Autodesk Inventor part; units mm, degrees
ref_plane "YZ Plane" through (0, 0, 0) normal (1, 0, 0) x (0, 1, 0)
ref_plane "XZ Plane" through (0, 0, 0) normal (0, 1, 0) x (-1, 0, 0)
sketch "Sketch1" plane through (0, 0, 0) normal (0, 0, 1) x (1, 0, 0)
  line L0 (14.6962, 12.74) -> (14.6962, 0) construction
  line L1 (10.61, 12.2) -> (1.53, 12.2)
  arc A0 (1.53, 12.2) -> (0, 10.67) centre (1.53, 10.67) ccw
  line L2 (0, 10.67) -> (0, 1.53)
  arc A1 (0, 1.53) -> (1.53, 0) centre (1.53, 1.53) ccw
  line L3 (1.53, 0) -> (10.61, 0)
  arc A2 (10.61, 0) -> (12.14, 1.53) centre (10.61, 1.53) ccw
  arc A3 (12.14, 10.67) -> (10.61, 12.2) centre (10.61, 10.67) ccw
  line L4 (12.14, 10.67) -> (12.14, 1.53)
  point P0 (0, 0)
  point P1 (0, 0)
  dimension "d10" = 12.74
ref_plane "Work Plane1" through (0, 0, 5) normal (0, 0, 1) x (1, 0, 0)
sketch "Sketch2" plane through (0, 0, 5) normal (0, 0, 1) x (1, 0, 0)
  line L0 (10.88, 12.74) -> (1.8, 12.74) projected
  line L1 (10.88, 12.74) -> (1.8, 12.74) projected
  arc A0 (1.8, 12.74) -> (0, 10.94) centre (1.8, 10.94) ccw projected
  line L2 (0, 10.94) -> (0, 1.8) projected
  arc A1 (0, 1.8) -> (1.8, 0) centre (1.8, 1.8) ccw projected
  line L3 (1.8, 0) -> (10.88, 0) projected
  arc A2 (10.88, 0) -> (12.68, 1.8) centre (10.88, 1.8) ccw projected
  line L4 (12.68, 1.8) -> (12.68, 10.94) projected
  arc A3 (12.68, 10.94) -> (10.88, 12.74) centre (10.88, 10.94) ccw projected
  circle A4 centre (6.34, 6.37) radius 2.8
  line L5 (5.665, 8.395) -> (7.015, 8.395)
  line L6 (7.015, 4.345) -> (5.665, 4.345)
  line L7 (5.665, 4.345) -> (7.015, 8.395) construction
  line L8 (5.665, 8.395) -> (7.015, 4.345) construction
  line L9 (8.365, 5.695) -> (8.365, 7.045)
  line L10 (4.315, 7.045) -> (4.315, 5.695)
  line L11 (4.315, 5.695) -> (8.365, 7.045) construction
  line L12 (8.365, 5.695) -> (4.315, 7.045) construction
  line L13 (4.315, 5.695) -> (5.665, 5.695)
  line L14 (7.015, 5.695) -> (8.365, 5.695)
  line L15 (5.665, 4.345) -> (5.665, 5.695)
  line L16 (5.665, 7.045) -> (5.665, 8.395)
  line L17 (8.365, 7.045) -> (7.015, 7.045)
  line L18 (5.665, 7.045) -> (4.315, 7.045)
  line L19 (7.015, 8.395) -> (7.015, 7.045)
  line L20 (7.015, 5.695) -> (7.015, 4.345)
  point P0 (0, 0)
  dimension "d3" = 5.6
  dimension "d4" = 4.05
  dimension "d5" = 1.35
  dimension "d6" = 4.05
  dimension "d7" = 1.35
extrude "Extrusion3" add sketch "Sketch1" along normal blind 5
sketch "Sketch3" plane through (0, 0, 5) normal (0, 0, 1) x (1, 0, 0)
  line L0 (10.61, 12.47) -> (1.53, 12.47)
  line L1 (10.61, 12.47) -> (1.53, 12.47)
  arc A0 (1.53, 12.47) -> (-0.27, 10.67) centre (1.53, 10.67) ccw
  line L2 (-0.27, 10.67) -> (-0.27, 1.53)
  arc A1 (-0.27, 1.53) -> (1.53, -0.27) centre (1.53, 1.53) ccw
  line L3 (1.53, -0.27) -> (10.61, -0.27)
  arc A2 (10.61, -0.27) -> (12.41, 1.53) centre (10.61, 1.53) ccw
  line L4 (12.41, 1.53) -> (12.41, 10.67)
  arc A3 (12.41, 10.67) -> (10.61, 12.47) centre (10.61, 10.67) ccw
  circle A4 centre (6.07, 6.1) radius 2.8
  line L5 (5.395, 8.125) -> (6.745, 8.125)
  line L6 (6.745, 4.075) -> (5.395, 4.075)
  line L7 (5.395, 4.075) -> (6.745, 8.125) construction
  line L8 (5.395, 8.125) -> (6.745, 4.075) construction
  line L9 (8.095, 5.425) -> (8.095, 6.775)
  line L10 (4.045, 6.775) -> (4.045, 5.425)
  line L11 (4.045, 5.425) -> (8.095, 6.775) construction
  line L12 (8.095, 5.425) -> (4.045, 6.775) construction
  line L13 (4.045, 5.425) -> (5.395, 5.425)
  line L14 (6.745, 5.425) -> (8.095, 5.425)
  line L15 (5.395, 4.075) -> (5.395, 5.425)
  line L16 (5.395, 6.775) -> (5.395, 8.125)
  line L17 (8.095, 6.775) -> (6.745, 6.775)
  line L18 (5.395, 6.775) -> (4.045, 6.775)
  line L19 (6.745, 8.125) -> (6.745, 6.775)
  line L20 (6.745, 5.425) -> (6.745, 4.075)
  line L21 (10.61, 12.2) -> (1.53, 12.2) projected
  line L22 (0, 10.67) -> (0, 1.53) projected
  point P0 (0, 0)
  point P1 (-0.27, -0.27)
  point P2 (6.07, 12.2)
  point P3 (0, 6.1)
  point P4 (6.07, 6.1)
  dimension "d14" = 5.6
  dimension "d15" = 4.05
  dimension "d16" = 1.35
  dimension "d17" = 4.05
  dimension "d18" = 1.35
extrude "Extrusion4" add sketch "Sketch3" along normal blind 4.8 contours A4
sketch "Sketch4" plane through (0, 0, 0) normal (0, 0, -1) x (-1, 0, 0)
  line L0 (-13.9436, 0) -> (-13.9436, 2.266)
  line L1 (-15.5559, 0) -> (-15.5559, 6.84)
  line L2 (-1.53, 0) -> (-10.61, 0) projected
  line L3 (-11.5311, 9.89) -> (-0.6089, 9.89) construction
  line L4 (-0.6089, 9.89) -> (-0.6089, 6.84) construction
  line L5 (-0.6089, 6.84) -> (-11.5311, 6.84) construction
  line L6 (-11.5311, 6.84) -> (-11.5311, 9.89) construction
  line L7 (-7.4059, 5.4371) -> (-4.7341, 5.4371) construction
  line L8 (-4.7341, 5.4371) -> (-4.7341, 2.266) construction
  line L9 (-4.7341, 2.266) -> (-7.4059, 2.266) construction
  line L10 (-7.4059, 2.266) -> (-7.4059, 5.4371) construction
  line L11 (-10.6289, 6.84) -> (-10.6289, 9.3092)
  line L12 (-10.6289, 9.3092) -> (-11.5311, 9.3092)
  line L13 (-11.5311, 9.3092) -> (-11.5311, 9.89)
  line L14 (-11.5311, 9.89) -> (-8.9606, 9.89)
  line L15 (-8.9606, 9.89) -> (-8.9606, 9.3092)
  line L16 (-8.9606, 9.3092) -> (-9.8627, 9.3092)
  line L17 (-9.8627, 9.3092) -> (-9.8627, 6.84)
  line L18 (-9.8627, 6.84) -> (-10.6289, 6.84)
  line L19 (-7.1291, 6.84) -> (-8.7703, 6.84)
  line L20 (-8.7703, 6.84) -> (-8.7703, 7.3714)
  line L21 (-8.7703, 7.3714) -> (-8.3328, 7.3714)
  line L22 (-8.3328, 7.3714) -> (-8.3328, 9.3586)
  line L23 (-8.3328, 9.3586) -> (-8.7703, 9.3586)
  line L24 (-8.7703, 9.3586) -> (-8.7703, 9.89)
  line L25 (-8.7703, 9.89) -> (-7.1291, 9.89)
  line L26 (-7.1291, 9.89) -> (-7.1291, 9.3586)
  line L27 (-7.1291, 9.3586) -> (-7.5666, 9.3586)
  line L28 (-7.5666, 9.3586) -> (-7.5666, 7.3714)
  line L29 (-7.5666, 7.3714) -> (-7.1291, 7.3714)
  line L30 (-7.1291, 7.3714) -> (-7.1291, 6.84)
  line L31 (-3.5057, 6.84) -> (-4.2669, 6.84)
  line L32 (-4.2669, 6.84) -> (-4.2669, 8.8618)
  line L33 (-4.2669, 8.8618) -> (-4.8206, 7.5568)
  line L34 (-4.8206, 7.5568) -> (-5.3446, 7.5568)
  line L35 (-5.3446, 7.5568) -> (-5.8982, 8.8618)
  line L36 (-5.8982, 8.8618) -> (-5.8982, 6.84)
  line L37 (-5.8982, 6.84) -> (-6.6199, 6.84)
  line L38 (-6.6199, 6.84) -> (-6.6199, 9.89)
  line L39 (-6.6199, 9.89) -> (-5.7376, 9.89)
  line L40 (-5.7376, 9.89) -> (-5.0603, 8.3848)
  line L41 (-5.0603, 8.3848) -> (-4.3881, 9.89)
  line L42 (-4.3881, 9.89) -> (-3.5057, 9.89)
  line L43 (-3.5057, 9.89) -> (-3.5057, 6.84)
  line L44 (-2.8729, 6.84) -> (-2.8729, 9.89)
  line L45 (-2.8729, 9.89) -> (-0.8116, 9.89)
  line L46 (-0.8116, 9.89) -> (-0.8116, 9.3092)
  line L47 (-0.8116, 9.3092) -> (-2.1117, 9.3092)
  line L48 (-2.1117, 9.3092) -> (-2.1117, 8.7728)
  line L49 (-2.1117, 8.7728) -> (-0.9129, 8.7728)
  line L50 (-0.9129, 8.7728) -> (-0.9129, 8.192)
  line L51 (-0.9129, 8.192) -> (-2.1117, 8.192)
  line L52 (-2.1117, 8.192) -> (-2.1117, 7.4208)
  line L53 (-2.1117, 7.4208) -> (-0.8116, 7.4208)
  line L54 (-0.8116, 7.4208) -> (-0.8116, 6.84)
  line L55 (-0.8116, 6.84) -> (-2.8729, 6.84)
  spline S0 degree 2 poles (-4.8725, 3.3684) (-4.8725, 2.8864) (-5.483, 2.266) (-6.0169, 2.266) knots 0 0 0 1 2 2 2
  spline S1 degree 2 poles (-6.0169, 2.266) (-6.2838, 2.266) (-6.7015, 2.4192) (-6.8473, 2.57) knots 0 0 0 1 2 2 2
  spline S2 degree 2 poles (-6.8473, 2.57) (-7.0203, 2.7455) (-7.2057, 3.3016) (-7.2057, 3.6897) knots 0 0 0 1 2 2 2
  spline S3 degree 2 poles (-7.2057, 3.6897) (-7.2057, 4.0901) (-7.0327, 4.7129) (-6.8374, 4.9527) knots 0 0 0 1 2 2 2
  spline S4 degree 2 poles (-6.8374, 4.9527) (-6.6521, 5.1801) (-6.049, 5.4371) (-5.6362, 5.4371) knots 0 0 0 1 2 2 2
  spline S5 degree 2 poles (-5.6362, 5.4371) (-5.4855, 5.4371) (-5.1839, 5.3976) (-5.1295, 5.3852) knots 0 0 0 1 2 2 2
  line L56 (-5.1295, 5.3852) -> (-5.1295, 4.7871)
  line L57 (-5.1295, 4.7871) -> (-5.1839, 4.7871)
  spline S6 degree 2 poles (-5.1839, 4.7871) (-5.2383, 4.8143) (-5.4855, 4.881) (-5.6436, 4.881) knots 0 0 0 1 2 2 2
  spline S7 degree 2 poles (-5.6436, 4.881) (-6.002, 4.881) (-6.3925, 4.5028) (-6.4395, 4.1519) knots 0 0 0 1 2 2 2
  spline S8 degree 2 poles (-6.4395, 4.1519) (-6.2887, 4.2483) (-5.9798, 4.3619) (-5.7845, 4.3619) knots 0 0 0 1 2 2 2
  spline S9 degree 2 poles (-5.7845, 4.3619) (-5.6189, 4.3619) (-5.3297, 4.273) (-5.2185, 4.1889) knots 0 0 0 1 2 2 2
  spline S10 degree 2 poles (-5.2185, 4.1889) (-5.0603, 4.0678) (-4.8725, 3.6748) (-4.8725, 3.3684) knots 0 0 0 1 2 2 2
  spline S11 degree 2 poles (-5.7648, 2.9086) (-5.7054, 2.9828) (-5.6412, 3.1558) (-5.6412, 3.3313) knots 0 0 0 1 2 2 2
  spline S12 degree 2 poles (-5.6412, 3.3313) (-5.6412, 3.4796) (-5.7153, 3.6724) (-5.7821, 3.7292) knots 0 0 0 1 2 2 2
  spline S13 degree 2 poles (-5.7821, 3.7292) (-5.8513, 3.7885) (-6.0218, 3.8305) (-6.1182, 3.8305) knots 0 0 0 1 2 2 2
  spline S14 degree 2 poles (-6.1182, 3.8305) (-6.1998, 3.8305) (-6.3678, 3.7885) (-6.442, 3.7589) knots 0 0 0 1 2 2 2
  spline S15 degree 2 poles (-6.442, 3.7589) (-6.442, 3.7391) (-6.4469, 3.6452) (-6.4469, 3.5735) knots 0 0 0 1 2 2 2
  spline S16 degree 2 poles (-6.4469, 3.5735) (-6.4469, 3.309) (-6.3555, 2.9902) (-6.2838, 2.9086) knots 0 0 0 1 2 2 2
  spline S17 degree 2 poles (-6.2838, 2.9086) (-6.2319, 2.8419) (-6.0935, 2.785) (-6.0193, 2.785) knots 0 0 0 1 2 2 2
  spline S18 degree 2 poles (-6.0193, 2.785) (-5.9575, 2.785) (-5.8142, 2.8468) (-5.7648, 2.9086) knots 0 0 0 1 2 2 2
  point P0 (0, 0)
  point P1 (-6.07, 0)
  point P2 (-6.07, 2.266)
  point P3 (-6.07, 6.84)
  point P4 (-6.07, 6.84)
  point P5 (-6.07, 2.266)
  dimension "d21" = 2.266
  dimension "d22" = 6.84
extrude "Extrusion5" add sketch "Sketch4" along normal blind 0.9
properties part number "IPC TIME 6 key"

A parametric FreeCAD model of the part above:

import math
import FreeCAD as App
import Part
import Sketcher

V = App.Vector
Q = App.Units.Quantity

doc = App.newDocument("Part")
body = doc.addObject("PartDesign::Body", "Body")

sketch1 = body.newObject("Sketcher::SketchObject", "Sketch")
sketch1.AttachmentSupport = (doc.getObject("XY_Plane"), [""])
sketch1.MapMode = "FlatFace"
sketch1.addGeometry(Part.ArcOfCircle(Part.Circle(V(10.61, 10.67, 0), V(0, 0, 1), 1.53), math.radians(0), math.radians(90)), False)
sketch1.addGeometry(Part.LineSegment(V(10.61, 12.2, 0), V(1.53, 12.2, 0)), False)
sketch1.addGeometry(Part.ArcOfCircle(Part.Circle(V(1.53, 10.67, 0), V(0, 0, 1), 1.53), math.radians(90), math.radians(180)), False)
sketch1.addGeometry(Part.LineSegment(V(0, 10.67, 0), V(0, 1.53, 0)), False)
sketch1.addGeometry(Part.ArcOfCircle(Part.Circle(V(1.53, 1.53, 0), V(0, 0, 1), 1.53), math.radians(180), math.radians(270)), False)
sketch1.addGeometry(Part.LineSegment(V(1.53, 0, 0), V(10.61, 0, 0)), False)
sketch1.addGeometry(Part.ArcOfCircle(Part.Circle(V(10.61, 1.53, 0), V(0, 0, 1), 1.53), math.radians(-90), math.radians(0)), False)
sketch1.addGeometry(Part.LineSegment(V(12.14, 1.53, 0), V(12.14, 10.67, 0)), False)
sketch1.addConstraint(Sketcher.Constraint("Tangent", 0, 2, 1, 1))
sketch1.addConstraint(Sketcher.Constraint("Tangent", 1, 2, 2, 1))
sketch1.addConstraint(Sketcher.Constraint("Tangent", 2, 2, 3, 1))
sketch1.addConstraint(Sketcher.Constraint("Tangent", 3, 2, 4, 1))
sketch1.addConstraint(Sketcher.Constraint("Tangent", 4, 2, 5, 1))
sketch1.addConstraint(Sketcher.Constraint("Tangent", 5, 2, 6, 1))
sketch1.addConstraint(Sketcher.Constraint("Tangent", 6, 2, 7, 1))
sketch1.addConstraint(Sketcher.Constraint("Tangent", 7, 2, 0, 1))
sketch1.addConstraint(Sketcher.Constraint("Horizontal", 1))
sketch1.addConstraint(Sketcher.Constraint("Vertical", 3))
sketch1.addConstraint(Sketcher.Constraint("Horizontal", 5))
sketch1.addConstraint(Sketcher.Constraint("Vertical", 7))
sketch1.addConstraint(Sketcher.Constraint("Equal", 0, 2))
sketch1.addConstraint(Sketcher.Constraint("Equal", 2, 4))
sketch1.addConstraint(Sketcher.Constraint("Equal", 4, 6))
sketch1.addConstraint(Sketcher.Constraint("PointOnObject", 2, 2, -2))
sketch1.addConstraint(Sketcher.Constraint("PointOnObject", 4, 2, -1))
sketch1.addConstraint(Sketcher.Constraint("Radius", 0, 1.53))
sketch1.addConstraint(Sketcher.Constraint("DistanceX", 1, 2, 1, 1, 9.08))
sketch1.addConstraint(Sketcher.Constraint("DistanceY", 3, 2, 3, 1, 9.14))
pad1 = body.newObject("PartDesign::Pad", "Pad")
pad1.Profile = sketch1
pad1.Length = 5

sketch2 = body.newObject("Sketcher::SketchObject", "Sketch001")
sketch2.AttachmentSupport = (doc.getObject("XY_Plane"), [""])
sketch2.MapMode = "FlatFace"
sketch2.AttachmentOffset = App.Placement(V(0, 0, 5), App.Rotation())
sketch2.addGeometry(Part.Circle(V(6.07, 6.1, 0), V(0, 0, 1), 2.8), False)
sketch2.addGeometry(Part.LineSegment(V(5.395, 6.775, 0), V(5.395, 8.125, 0)), False)
sketch2.addGeometry(Part.LineSegment(V(5.395, 8.125, 0), V(6.745, 8.125, 0)), False)
sketch2.addGeometry(Part.LineSegment(V(6.745, 8.125, 0), V(6.745, 6.775, 0)), False)
sketch2.addGeometry(Part.LineSegment(V(6.745, 6.775, 0), V(8.095, 6.775, 0)), False)
sketch2.addGeometry(Part.LineSegment(V(8.095, 6.775, 0), V(8.095, 5.425, 0)), False)
sketch2.addGeometry(Part.LineSegment(V(8.095, 5.425, 0), V(6.745, 5.425, 0)), False)
sketch2.addGeometry(Part.LineSegment(V(6.745, 5.425, 0), V(6.745, 4.075, 0)), False)
sketch2.addGeometry(Part.LineSegment(V(6.745, 4.075, 0), V(5.395, 4.075, 0)), False)
sketch2.addGeometry(Part.LineSegment(V(5.395, 4.075, 0), V(5.395, 5.425, 0)), False)
sketch2.addGeometry(Part.LineSegment(V(5.395, 5.425, 0), V(4.045, 5.425, 0)), False)
sketch2.addGeometry(Part.LineSegment(V(4.045, 5.425, 0), V(4.045, 6.775, 0)), False)
sketch2.addGeometry(Part.LineSegment(V(4.045, 6.775, 0), V(5.395, 6.775, 0)), False)
sketch2.addConstraint(Sketcher.Constraint("Coincident", 1, 2, 2, 1))
sketch2.addConstraint(Sketcher.Constraint("Coincident", 2, 2, 3, 1))
sketch2.addConstraint(Sketcher.Constraint("Coincident", 3, 2, 4, 1))
sketch2.addConstraint(Sketcher.Constraint("Coincident", 4, 2, 5, 1))
sketch2.addConstraint(Sketcher.Constraint("Coincident", 5, 2, 6, 1))
sketch2.addConstraint(Sketcher.Constraint("Coincident", 6, 2, 7, 1))
sketch2.addConstraint(Sketcher.Constraint("Coincident", 7, 2, 8, 1))
sketch2.addConstraint(Sketcher.Constraint("Coincident", 8, 2, 9, 1))
sketch2.addConstraint(Sketcher.Constraint("Coincident", 9, 2, 10, 1))
sketch2.addConstraint(Sketcher.Constraint("Coincident", 10, 2, 11, 1))
sketch2.addConstraint(Sketcher.Constraint("Coincident", 11, 2, 12, 1))
sketch2.addConstraint(Sketcher.Constraint("Coincident", 12, 2, 1, 1))
sketch2.addConstraint(Sketcher.Constraint("Vertical", 1))
sketch2.addConstraint(Sketcher.Constraint("Horizontal", 2))
sketch2.addConstraint(Sketcher.Constraint("Vertical", 3))
sketch2.addConstraint(Sketcher.Constraint("Horizontal", 4))
sketch2.addConstraint(Sketcher.Constraint("Vertical", 5))
sketch2.addConstraint(Sketcher.Constraint("Horizontal", 6))
sketch2.addConstraint(Sketcher.Constraint("Vertical", 7))
sketch2.addConstraint(Sketcher.Constraint("Horizontal", 8))
sketch2.addConstraint(Sketcher.Constraint("Vertical", 9))
sketch2.addConstraint(Sketcher.Constraint("Horizontal", 10))
sketch2.addConstraint(Sketcher.Constraint("Vertical", 11))
sketch2.addConstraint(Sketcher.Constraint("Horizontal", 12))
sketch2.addConstraint(Sketcher.Constraint("Horizontal", 6, 2, 9, 2))
sketch2.addConstraint(Sketcher.Constraint("Horizontal", 4, 2, 11, 2))
sketch2.addConstraint(Sketcher.Constraint("Vertical", 3, 2, 6, 2))
sketch2.addConstraint(Sketcher.Constraint("Vertical", 1, 2, 8, 2))
sketch2.addConstraint(Sketcher.Constraint("Equal", 2, 4))
sketch2.addConstraint(Sketcher.Constraint("Equal", 8, 10))
sketch2.addConstraint(Sketcher.Constraint("Equal", 12, 1))
sketch2.addConstraint(Sketcher.Constraint("Equal", 3, 5))
sketch2.addConstraint(Sketcher.Constraint("Equal", 5, 7))
sketch2.addConstraint(Sketcher.Constraint("Diameter", 0, 5.6))
sketch2.addConstraint(Sketcher.Constraint("DistanceX", 2, 1, 2, 2, 1.35))
sketch2.addConstraint(Sketcher.Constraint("DistanceY", -1, 1, 0, 3, 6.1))
sketch2.addConstraint(Sketcher.Constraint("DistanceX", -1, 1, 0, 3, 6.07))
sketch2.addConstraint(Sketcher.Constraint("DistanceX", -1, 1, 1, 2, 5.395))
sketch2.addConstraint(Sketcher.Constraint("DistanceY", -1, 1, 1, 2, 8.125))
pad2 = body.newObject("PartDesign::Pad", "Pad001")
pad2.Profile = sketch2
pad2.Length = 4.8

sketch3 = body.newObject("Sketcher::SketchObject", "Sketch002")
sketch3.AttachmentSupport = (doc.getObject("XY_Plane"), [""])
sketch3.MapMode = "FlatFace"
sketch3.addGeometry(Part.LineSegment(V(10.6289, 9.3092, 0), V(10.6289, 6.84, 0)), False)
sketch3.addGeometry(Part.LineSegment(V(10.6289, 6.84, 0), V(9.8627, 6.84, 0)), False)
sketch3.addGeometry(Part.LineSegment(V(9.8627, 6.84, 0), V(9.8627, 9.3092, 0)), False)
sketch3.addGeometry(Part.LineSegment(V(9.8627, 9.3092, 0), V(8.9606, 9.3092, 0)), False)
sketch3.addGeometry(Part.LineSegment(V(8.9606, 9.3092, 0), V(8.9606, 9.89, 0)), False)
sketch3.addGeometry(Part.LineSegment(V(8.9606, 9.89, 0), V(11.5311, 9.89, 0)), False)
sketch3.addGeometry(Part.LineSegment(V(11.5311, 9.89, 0), V(11.5311, 9.3092, 0)), False)
sketch3.addGeometry(Part.LineSegment(V(11.5311, 9.3092, 0), V(10.6289, 9.3092, 0)), False)
sketch3.addGeometry(Part.LineSegment(V(8.7703, 6.84, 0), V(7.1291, 6.84, 0)), False)
sketch3.addGeometry(Part.LineSegment(V(7.1291, 6.84, 0), V(7.1291, 7.3714, 0)), False)
sketch3.addGeometry(Part.LineSegment(V(7.1291, 7.3714, 0), V(7.5666, 7.3714, 0)), False)
sketch3.addGeometry(Part.LineSegment(V(7.5666, 7.3714, 0), V(7.5666, 9.3586, 0)), False)
sketch3.addGeometry(Part.LineSegment(V(7.5666, 9.3586, 0), V(7.1291, 9.3586, 0)), False)
sketch3.addGeometry(Part.LineSegment(V(7.1291, 9.3586, 0), V(7.1291, 9.89, 0)), False)
sketch3.addGeometry(Part.LineSegment(V(7.1291, 9.89, 0), V(8.7703, 9.89, 0)), False)
sketch3.addGeometry(Part.LineSegment(V(8.7703, 9.89, 0), V(8.7703, 9.3586, 0)), False)
sketch3.addGeometry(Part.LineSegment(V(8.7703, 9.3586, 0), V(8.3328, 9.3586, 0)), False)
sketch3.addGeometry(Part.LineSegment(V(8.3328, 9.3586, 0), V(8.3328, 7.3714, 0)), False)
sketch3.addGeometry(Part.LineSegment(V(8.3328, 7.3714, 0), V(8.7703, 7.3714, 0)), False)
sketch3.addGeometry(Part.LineSegment(V(8.7703, 7.3714, 0), V(8.7703, 6.84, 0)), False)
sketch3.addGeometry(Part.LineSegment(V(4.2669, 6.84, 0), V(3.5057, 6.84, 0)), False)
sketch3.addGeometry(Part.LineSegment(V(3.5057, 6.84, 0), V(3.5057, 9.89, 0)), False)
sketch3.addGeometry(Part.LineSegment(V(3.5057, 9.89, 0), V(4.3881, 9.89, 0)), False)
sketch3.addGeometry(Part.LineSegment(V(4.3881, 9.89, 0), V(5.0603, 8.3848, 0)), False)
sketch3.addGeometry(Part.LineSegment(V(5.0603, 8.3848, 0), V(5.7376, 9.89, 0)), False)
sketch3.addGeometry(Part.LineSegment(V(5.7376, 9.89, 0), V(6.6199, 9.89, 0)), False)
sketch3.addGeometry(Part.LineSegment(V(6.6199, 9.89, 0), V(6.6199, 6.84, 0)), False)
sketch3.addGeometry(Part.LineSegment(V(6.6199, 6.84, 0), V(5.8982, 6.84, 0)), False)
sketch3.addGeometry(Part.LineSegment(V(5.8982, 6.84, 0), V(5.8982, 8.8618, 0)), False)
sketch3.addGeometry(Part.LineSegment(V(5.8982, 8.8618, 0), V(5.3446, 7.5568, 0)), False)
sketch3.addGeometry(Part.LineSegment(V(5.3446, 7.5568, 0), V(4.8206, 7.5568, 0)), False)
sketch3.addGeometry(Part.LineSegment(V(4.8206, 7.5568, 0), V(4.2669, 8.8618, 0)), False)
sketch3.addGeometry(Part.LineSegment(V(4.2669, 8.8618, 0), V(4.2669, 6.84, 0)), False)
sketch3.addGeometry(Part.LineSegment(V(2.8729, 9.89, 0), V(2.8729, 6.84, 0)), False)
sketch3.addGeometry(Part.LineSegment(V(2.8729, 6.84, 0), V(0.8116, 6.84, 0)), False)
sketch3.addGeometry(Part.LineSegment(V(0.8116, 6.84, 0), V(0.8116, 7.4208, 0)), False)
sketch3.addGeometry(Part.LineSegment(V(0.8116, 7.4208, 0), V(2.1117, 7.4208, 0)), False)
sketch3.addGeometry(Part.LineSegment(V(2.1117, 7.4208, 0), V(2.1117, 8.192, 0)), False)
sketch3.addGeometry(Part.LineSegment(V(2.1117, 8.192, 0), V(0.9129, 8.192, 0)), False)
sketch3.addGeometry(Part.LineSegment(V(0.9129, 8.192, 0), V(0.9129, 8.7728, 0)), False)
sketch3.addGeometry(Part.LineSegment(V(0.9129, 8.7728, 0), V(2.1117, 8.7728, 0)), False)
sketch3.addGeometry(Part.LineSegment(V(2.1117, 8.7728, 0), V(2.1117, 9.3092, 0)), False)
sketch3.addGeometry(Part.LineSegment(V(2.1117, 9.3092, 0), V(0.8116, 9.3092, 0)), False)
sketch3.addGeometry(Part.LineSegment(V(0.8116, 9.3092, 0), V(0.8116, 9.89, 0)), False)
sketch3.addGeometry(Part.LineSegment(V(0.8116, 9.89, 0), V(2.8729, 9.89, 0)), False)
sketch3.addGeometry(Part.BSplineCurve([V(4.8725, 3.3684, 0), V(4.8725, 2.8864, 0), V(5.483, 2.266, 0), V(6.0169, 2.266, 0)], [3, 1, 3], [0, 1, 2], False, 2, [1, 1, 1, 1], False), False)
sketch3.addGeometry(Part.BSplineCurve([V(5.2185, 4.1889, 0), V(5.0603, 4.0678, 0), V(4.8725, 3.6748, 0), V(4.8725, 3.3684, 0)], [3, 1, 3], [0, 1, 2], False, 2, [1, 1, 1, 1], False), False)
sketch3.addGeometry(Part.BSplineCurve([V(5.7845, 4.3619, 0), V(5.6189, 4.3619, 0), V(5.3297, 4.273, 0), V(5.2185, 4.1889, 0)], [3, 1, 3], [0, 1, 2], False, 2, [1, 1, 1, 1], False), False)
sketch3.addGeometry(Part.BSplineCurve([V(6.4395, 4.1519, 0), V(6.2887, 4.2483, 0), V(5.9798, 4.3619, 0), V(5.7845, 4.3619, 0)], [3, 1, 3], [0, 1, 2], False, 2, [1, 1, 1, 1], False), False)
sketch3.addGeometry(Part.BSplineCurve([V(5.6436, 4.881, 0), V(6.002, 4.881, 0), V(6.3925, 4.5028, 0), V(6.4395, 4.1519, 0)], [3, 1, 3], [0, 1, 2], False, 2, [1, 1, 1, 1], False), False)
sketch3.addGeometry(Part.BSplineCurve([V(5.1839, 4.7871, 0), V(5.2383, 4.8143, 0), V(5.4855, 4.881, 0), V(5.6436, 4.881, 0)], [3, 1, 3], [0, 1, 2], False, 2, [1, 1, 1, 1], False), False)
sketch3.addGeometry(Part.LineSegment(V(5.1839, 4.7871, 0), V(5.1295, 4.7871, 0)), False)
sketch3.addGeometry(Part.LineSegment(V(5.1295, 4.7871, 0), V(5.1295, 5.3852, 0)), False)
sketch3.addGeometry(Part.BSplineCurve([V(5.6362, 5.4371, 0), V(5.4855, 5.4371, 0), V(5.1839, 5.3976, 0), V(5.1295, 5.3852, 0)], [3, 1, 3], [0, 1, 2], False, 2, [1, 1, 1, 1], False), False)
sketch3.addGeometry(Part.BSplineCurve([V(6.8374, 4.9527, 0), V(6.6521, 5.1801, 0), V(6.049, 5.4371, 0), V(5.6362, 5.4371, 0)], [3, 1, 3], [0, 1, 2], False, 2, [1, 1, 1, 1], False), False)
sketch3.addGeometry(Part.BSplineCurve([V(7.2057, 3.6897, 0), V(7.2057, 4.0901, 0), V(7.0327, 4.7129, 0), V(6.8374, 4.9527, 0)], [3, 1, 3], [0, 1, 2], False, 2, [1, 1, 1, 1], False), False)
sketch3.addGeometry(Part.BSplineCurve([V(6.8473, 2.57, 0), V(7.0203, 2.7455, 0), V(7.2057, 3.3016, 0), V(7.2057, 3.6897, 0)], [3, 1, 3], [0, 1, 2], False, 2, [1, 1, 1, 1], False), False)
sketch3.addGeometry(Part.BSplineCurve([V(6.0169, 2.266, 0), V(6.2838, 2.266, 0), V(6.7015, 2.4192, 0), V(6.8473, 2.57, 0)], [3, 1, 3], [0, 1, 2], False, 2, [1, 1, 1, 1], False), False)
sketch3.addGeometry(Part.BSplineCurve([V(5.7648, 2.9086, 0), V(5.7054, 2.9828, 0), V(5.6412, 3.1558, 0), V(5.6412, 3.3313, 0)], [3, 1, 3], [0, 1, 2], False, 2, [1, 1, 1, 1], False), False)
sketch3.addGeometry(Part.BSplineCurve([V(6.0193, 2.785, 0), V(5.9575, 2.785, 0), V(5.8142, 2.8468, 0), V(5.7648, 2.9086, 0)], [3, 1, 3], [0, 1, 2], False, 2, [1, 1, 1, 1], False), False)
sketch3.addGeometry(Part.BSplineCurve([V(6.2838, 2.9086, 0), V(6.2319, 2.8419, 0), V(6.0935, 2.785, 0), V(6.0193, 2.785, 0)], [3, 1, 3], [0, 1, 2], False, 2, [1, 1, 1, 1], False), False)
sketch3.addGeometry(Part.BSplineCurve([V(6.4469, 3.5735, 0), V(6.4469, 3.309, 0), V(6.3555, 2.9902, 0), V(6.2838, 2.9086, 0)], [3, 1, 3], [0, 1, 2], False, 2, [1, 1, 1, 1], False), False)
sketch3.addGeometry(Part.BSplineCurve([V(6.442, 3.7589, 0), V(6.442, 3.7391, 0), V(6.4469, 3.6452, 0), V(6.4469, 3.5735, 0)], [3, 1, 3], [0, 1, 2], False, 2, [1, 1, 1, 1], False), False)
sketch3.addGeometry(Part.BSplineCurve([V(6.1182, 3.8305, 0), V(6.1998, 3.8305, 0), V(6.3678, 3.7885, 0), V(6.442, 3.7589, 0)], [3, 1, 3], [0, 1, 2], False, 2, [1, 1, 1, 1], False), False)
sketch3.addGeometry(Part.BSplineCurve([V(5.7821, 3.7292, 0), V(5.8513, 3.7885, 0), V(6.0218, 3.8305, 0), V(6.1182, 3.8305, 0)], [3, 1, 3], [0, 1, 2], False, 2, [1, 1, 1, 1], False), False)
sketch3.addGeometry(Part.BSplineCurve([V(5.6412, 3.3313, 0), V(5.6412, 3.4796, 0), V(5.7153, 3.6724, 0), V(5.7821, 3.7292, 0)], [3, 1, 3], [0, 1, 2], False, 2, [1, 1, 1, 1], False), False)
sketch3.addConstraint(Sketcher.Constraint("Block", 45))
sketch3.addConstraint(Sketcher.Constraint("Block", 46))
sketch3.addConstraint(Sketcher.Constraint("Block", 47))
sketch3.addConstraint(Sketcher.Constraint("Block", 48))
sketch3.addConstraint(Sketcher.Constraint("Block", 49))
sketch3.addConstraint(Sketcher.Constraint("Block", 50))
sketch3.addConstraint(Sketcher.Constraint("Block", 53))
sketch3.addConstraint(Sketcher.Constraint("Block", 54))
sketch3.addConstraint(Sketcher.Constraint("Block", 55))
sketch3.addConstraint(Sketcher.Constraint("Block", 56))
sketch3.addConstraint(Sketcher.Constraint("Block", 57))
sketch3.addConstraint(Sketcher.Constraint("Block", 58))
sketch3.addConstraint(Sketcher.Constraint("Block", 59))
sketch3.addConstraint(Sketcher.Constraint("Block", 60))
sketch3.addConstraint(Sketcher.Constraint("Block", 61))
sketch3.addConstraint(Sketcher.Constraint("Block", 62))
sketch3.addConstraint(Sketcher.Constraint("Block", 63))
sketch3.addConstraint(Sketcher.Constraint("Block", 64))
sketch3.addConstraint(Sketcher.Constraint("Block", 65))
sketch3.addConstraint(Sketcher.Constraint("Coincident", 0, 2, 1, 1))
sketch3.addConstraint(Sketcher.Constraint("Coincident", 1, 2, 2, 1))
sketch3.addConstraint(Sketcher.Constraint("Coincident", 2, 2, 3, 1))
sketch3.addConstraint(Sketcher.Constraint("Coincident", 3, 2, 4, 1))
sketch3.addConstraint(Sketcher.Constraint("Coincident", 4, 2, 5, 1))
sketch3.addConstraint(Sketcher.Constraint("Coincident", 5, 2, 6, 1))
sketch3.addConstraint(Sketcher.Constraint("Coincident", 6, 2, 7, 1))
sketch3.addConstraint(Sketcher.Constraint("Coincident", 7, 2, 0, 1))
sketch3.addConstraint(Sketcher.Constraint("Coincident", 8, 2, 9, 1))
sketch3.addConstraint(Sketcher.Constraint("Coincident", 9, 2, 10, 1))
sketch3.addConstraint(Sketcher.Constraint("Coincident", 10, 2, 11, 1))
sketch3.addConstraint(Sketcher.Constraint("Coincident", 11, 2, 12, 1))
sketch3.addConstraint(Sketcher.Constraint("Coincident", 12, 2, 13, 1))
sketch3.addConstraint(Sketcher.Constraint("Coincident", 13, 2, 14, 1))
sketch3.addConstraint(Sketcher.Constraint("Coincident", 14, 2, 15, 1))
sketch3.addConstraint(Sketcher.Constraint("Coincident", 15, 2, 16, 1))
sketch3.addConstraint(Sketcher.Constraint("Coincident", 16, 2, 17, 1))
sketch3.addConstraint(Sketcher.Constraint("Coincident", 17, 2, 18, 1))
sketch3.addConstraint(Sketcher.Constraint("Coincident", 18, 2, 19, 1))
sketch3.addConstraint(Sketcher.Constraint("Coincident", 19, 2, 8, 1))
sketch3.addConstraint(Sketcher.Constraint("Coincident", 20, 2, 21, 1))
sketch3.addConstraint(Sketcher.Constraint("Coincident", 21, 2, 22, 1))
sketch3.addConstraint(Sketcher.Constraint("Coincident", 22, 2, 23, 1))
sketch3.addConstraint(Sketcher.Constraint("Coincident", 23, 2, 24, 1))
sketch3.addConstraint(Sketcher.Constraint("Coincident", 24, 2, 25, 1))
sketch3.addConstraint(Sketcher.Constraint("Coincident", 25, 2, 26, 1))
sketch3.addConstraint(Sketcher.Constraint("Coincident", 26, 2, 27, 1))
sketch3.addConstraint(Sketcher.Constraint("Coincident", 27, 2, 28, 1))
sketch3.addConstraint(Sketcher.Constraint("Coincident", 28, 2, 29, 1))
sketch3.addConstraint(Sketcher.Constraint("Coincident", 29, 2, 30, 1))
sketch3.addConstraint(Sketcher.Constraint("Coincident", 30, 2, 31, 1))
sketch3.addConstraint(Sketcher.Constraint("Coincident", 31, 2, 32, 1))
sketch3.addConstraint(Sketcher.Constraint("Coincident", 32, 2, 20, 1))
sketch3.addConstraint(Sketcher.Constraint("Coincident", 33, 2, 34, 1))
sketch3.addConstraint(Sketcher.Constraint("Coincident", 34, 2, 35, 1))
sketch3.addConstraint(Sketcher.Constraint("Coincident", 35, 2, 36, 1))
sketch3.addConstraint(Sketcher.Constraint("Coincident", 36, 2, 37, 1))
sketch3.addConstraint(Sketcher.Constraint("Coincident", 37, 2, 38, 1))
sketch3.addConstraint(Sketcher.Constraint("Coincident", 38, 2, 39, 1))
sketch3.addConstraint(Sketcher.Constraint("Coincident", 39, 2, 40, 1))
sketch3.addConstraint(Sketcher.Constraint("Coincident", 40, 2, 41, 1))
sketch3.addConstraint(Sketcher.Constraint("Coincident", 41, 2, 42, 1))
sketch3.addConstraint(Sketcher.Constraint("Coincident", 42, 2, 43, 1))
sketch3.addConstraint(Sketcher.Constraint("Coincident", 43, 2, 44, 1))
sketch3.addConstraint(Sketcher.Constraint("Coincident", 44, 2, 33, 1))
sketch3.addConstraint(Sketcher.Constraint("Coincident", 50, 1, 51, 1))
sketch3.addConstraint(Sketcher.Constraint("Coincident", 51, 2, 52, 1))
sketch3.addConstraint(Sketcher.Constraint("Coincident", 52, 2, 53, 2))
sketch3.addConstraint(Sketcher.Constraint("Vertical", 0))
sketch3.addConstraint(Sketcher.Constraint("Horizontal", 1))
sketch3.addConstraint(Sketcher.Constraint("Vertical", 2))
sketch3.addConstraint(Sketcher.Constraint("Horizontal", 3))
sketch3.addConstraint(Sketcher.Constraint("Vertical", 4))
sketch3.addConstraint(Sketcher.Constraint("Horizontal", 5))
sketch3.addConstraint(Sketcher.Constraint("Vertical", 6))
sketch3.addConstraint(Sketcher.Constraint("Horizontal", 7))
sketch3.addConstraint(Sketcher.Constraint("Horizontal", 8))
sketch3.addConstraint(Sketcher.Constraint("Vertical", 9))
sketch3.addConstraint(Sketcher.Constraint("Horizontal", 10))
sketch3.addConstraint(Sketcher.Constraint("Vertical", 11))
sketch3.addConstraint(Sketcher.Constraint("Horizontal", 12))
sketch3.addConstraint(Sketcher.Constraint("Vertical", 13))
sketch3.addConstraint(Sketcher.Constraint("Horizontal", 14))
sketch3.addConstraint(Sketcher.Constraint("Vertical", 15))
sketch3.addConstraint(Sketcher.Constraint("Horizontal", 16))
sketch3.addConstraint(Sketcher.Constraint("Vertical", 17))
sketch3.addConstraint(Sketcher.Constraint("Horizontal", 18))
sketch3.addConstraint(Sketcher.Constraint("Vertical", 19))
sketch3.addConstraint(Sketcher.Constraint("Horizontal", 20))
sketch3.addConstraint(Sketcher.Constraint("Vertical", 21))
sketch3.addConstraint(Sketcher.Constraint("Horizontal", 22))
sketch3.addConstraint(Sketcher.Constraint("Horizontal", 25))
sketch3.addConstraint(Sketcher.Constraint("Vertical", 26))
sketch3.addConstraint(Sketcher.Constraint("Horizontal", 27))
sketch3.addConstraint(Sketcher.Constraint("Vertical", 28))
sketch3.addConstraint(Sketcher.Constraint("Horizontal", 30))
sketch3.addConstraint(Sketcher.Constraint("Vertical", 32))
sketch3.addConstraint(Sketcher.Constraint("Vertical", 33))
sketch3.addConstraint(Sketcher.Constraint("Horizontal", 34))
sketch3.addConstraint(Sketcher.Constraint("Vertical", 35))
sketch3.addConstraint(Sketcher.Constraint("Horizontal", 36))
sketch3.addConstraint(Sketcher.Constraint("Vertical", 37))
sketch3.addConstraint(Sketcher.Constraint("Horizontal", 38))
sketch3.addConstraint(Sketcher.Constraint("Vertical", 39))
sketch3.addConstraint(Sketcher.Constraint("Horizontal", 40))
sketch3.addConstraint(Sketcher.Constraint("Vertical", 41))
sketch3.addConstraint(Sketcher.Constraint("Horizontal", 42))
sketch3.addConstraint(Sketcher.Constraint("Vertical", 43))
sketch3.addConstraint(Sketcher.Constraint("Horizontal", 44))
sketch3.addConstraint(Sketcher.Constraint("Horizontal", 51))
sketch3.addConstraint(Sketcher.Constraint("Vertical", 52))
sketch3.addConstraint(Sketcher.Constraint("Horizontal", 3, 2, 6, 2))
sketch3.addConstraint(Sketcher.Constraint("Horizontal", 1, 2, 8, 2))
sketch3.addConstraint(Sketcher.Constraint("Horizontal", 5, 2, 13, 2))
sketch3.addConstraint(Sketcher.Constraint("Horizontal", 12, 2, 15, 2))
sketch3.addConstraint(Sketcher.Constraint("Horizontal", 10, 2, 17, 2))
sketch3.addConstraint(Sketcher.Constraint("Horizontal", 19, 2, 20, 2))
sketch3.addConstraint(Sketcher.Constraint("Horizontal", 14, 2, 21, 2))
sketch3.addConstraint(Sketcher.Constraint("Horizontal", 22, 2, 24, 2))
sketch3.addConstraint(Sketcher.Constraint("Horizontal", 20, 2, 26, 2))
sketch3.addConstraint(Sketcher.Constraint("Horizontal", 28, 2, 31, 2))
sketch3.addConstraint(Sketcher.Constraint("Horizontal", 32, 2, 33, 2))
sketch3.addConstraint(Sketcher.Constraint("Horizontal", 7, 2, 41, 2))
sketch3.addConstraint(Sketcher.Constraint("Horizontal", 25, 2, 43, 2))
sketch3.addConstraint(Sketcher.Constraint("Vertical", 9, 2, 12, 2))
sketch3.addConstraint(Sketcher.Constraint("Vertical", 15, 2, 18, 2))
sketch3.addConstraint(Sketcher.Constraint("Vertical", 37, 2, 40, 2))
sketch3.addConstraint(Sketcher.Constraint("Vertical", 35, 2, 42, 2))
sketch3.addConstraint(Sketcher.Constraint("Equal", 3, 7))
sketch3.addConstraint(Sketcher.Constraint("Equal", 12, 16))
sketch3.addConstraint(Sketcher.Constraint("Equal", 22, 25))
sketch3.addConstraint(Sketcher.Constraint("Equal", 9, 13))
sketch3.addConstraint(Sketcher.Constraint("Equal", 6, 35))
sketch3.addConstraint(Sketcher.Constraint("Equal", 35, 39))
sketch3.addConstraint(Sketcher.Constraint("Equal", 29, 31))
sketch3.addConstraint(Sketcher.Constraint("DistanceY", -1, 1, 0, 2, 6.84))
sketch3.addConstraint(Sketcher.Constraint("DistanceX", 36, 1, 36, 2, 1.3))
sketch3.addConstraint(Sketcher.Constraint("DistanceY", 21, 1, 21, 2, 3.05))
sketch3.addConstraint(Sketcher.Constraint("Angle", 31, Q("112.991 deg")))
sketch3.addConstraint(Sketcher.Constraint("DistanceX", 3, 2, 3, 1, 0.902))
sketch3.addConstraint(Sketcher.Constraint("DistanceX", 30, 2, 30, 1, 0.524))
sketch3.addConstraint(Sketcher.Constraint("DistanceX", -1, 1, 25, 2, 6.62))
sketch3.addConstraint(Sketcher.Constraint("DistanceX", 17, 2, 1, 2, 1.53))
sketch3.addConstraint(Sketcher.Constraint("DistanceX", 38, 2, 33, 2, 1.96))
sketch3.addConstraint(Sketcher.Constraint("DistanceX", 1, 2, 1, 1, 0.7662))
sketch3.addConstraint(Sketcher.Constraint("DistanceX", 8, 2, 8, 1, 1.6412))
sketch3.addConstraint(Sketcher.Constraint("DistanceX", 10, 1, 10, 2, 0.4375))
sketch3.addConstraint(Sketcher.Constraint("DistanceX", 20, 2, 20, 1, 0.7612))
sketch3.addConstraint(Sketcher.Constraint("DistanceX", 22, 1, 22, 2, 0.8824))
sketch3.addConstraint(Sketcher.Constraint("DistanceX", 27, 2, 27, 1, 0.7217))
sketch3.addConstraint(Sketcher.Constraint("DistanceX", 34, 2, 34, 1, 2.0613))
sketch3.addConstraint(Sketcher.Constraint("DistanceY", 0, 2, 0, 1, 2.4692))
sketch3.addConstraint(Sketcher.Constraint("DistanceY", 9, 1, 9, 2, 0.5314))
sketch3.addConstraint(Sketcher.Constraint("DistanceY", 28, 1, 28, 2, 2.0218))
sketch3.addConstraint(Sketcher.Constraint("DistanceY", 37, 1, 37, 2, 0.7712))
sketch3.addConstraint(Sketcher.Constraint("DistanceX", -1, 1, 0, 2, 10.629))
sketch3.addConstraint(Sketcher.Constraint("DistanceX", -1, 1, 22, 2, 4.388))
sketch3.addConstraint(Sketcher.Constraint("DistanceX", -1, 1, 33, 2, 2.873))
sketch3.addConstraint(Sketcher.Constraint("DistanceX", 23, 2, 27, 2, 0.838))
sketch3.addConstraint(Sketcher.Constraint("DistanceY", 23, 2, 28, 2, 0.477))
pad3 = body.newObject("PartDesign::Pad", "Pad002")
pad3.Profile = sketch3
pad3.Length = 0.9
pad3.Reversed = True

doc.recompute()
